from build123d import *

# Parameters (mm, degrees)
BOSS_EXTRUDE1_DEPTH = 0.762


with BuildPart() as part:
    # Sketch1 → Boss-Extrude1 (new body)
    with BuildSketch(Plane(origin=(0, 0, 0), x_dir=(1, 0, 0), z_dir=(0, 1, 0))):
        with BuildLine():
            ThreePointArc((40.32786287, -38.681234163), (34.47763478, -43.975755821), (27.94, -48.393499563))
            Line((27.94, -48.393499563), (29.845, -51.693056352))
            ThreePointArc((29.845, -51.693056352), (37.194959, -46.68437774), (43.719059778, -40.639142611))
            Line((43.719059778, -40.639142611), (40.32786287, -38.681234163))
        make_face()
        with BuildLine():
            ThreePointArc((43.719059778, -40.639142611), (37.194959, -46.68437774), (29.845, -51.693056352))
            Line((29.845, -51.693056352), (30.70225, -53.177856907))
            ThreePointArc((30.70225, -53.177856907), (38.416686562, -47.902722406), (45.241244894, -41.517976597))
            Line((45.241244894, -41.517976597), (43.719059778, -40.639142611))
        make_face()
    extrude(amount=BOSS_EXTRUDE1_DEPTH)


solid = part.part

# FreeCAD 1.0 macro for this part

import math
import FreeCAD as App
import Part
import Sketcher
Q = App.Units.Quantity

doc = App.newDocument("Part")
body = doc.addObject("PartDesign::Body", "Body")

# Sketch on XZ plane
sketch1 = body.newObject("Sketcher::SketchObject", "Sketch")
sketch1.AttachmentSupport = (doc.getObject("XZ_Plane"), [""])
sketch1.MapMode = "FlatFace"
sketch1.addGeometry(Part.ArcOfCircle(Part.Circle(App.Vector(0, 0, 0), App.Vector(0, 0, 1), 55.9), math.radians(43.81), math.radians(60)), False)
sketch1.addGeometry(Part.LineSegment(App.Vector(27.9, 48.4, 0), App.Vector(29.8, 51.7, 0)), False)
sketch1.addGeometry(Part.LineSegment(App.Vector(29.8, 51.7, 0), App.Vector(30.7, 53.2, 0)), False)
sketch1.addGeometry(Part.ArcOfCircle(Part.Circle(App.Vector(0, 0, 0), App.Vector(0, 0, 1), 61.4), math.radians(42.54), math.radians(60)), False)
sketch1.addGeometry(Part.LineSegment(App.Vector(45.2, 41.5, 0), App.Vector(43.7, 40.6, 0)), False)
sketch1.addGeometry(Part.LineSegment(App.Vector(43.7, 40.6, 0), App.Vector(40.3, 38.7, 0)), False)
sketch1.addConstraint(Sketcher.Constraint("Coincident", 0, 2, 1, 1))
sketch1.addConstraint(Sketcher.Constraint("Coincident", 1, 2, 2, 1))
sketch1.addConstraint(Sketcher.Constraint("Coincident", 2, 2, 3, 2))
sketch1.addConstraint(Sketcher.Constraint("Coincident", 3, 1, 4, 1))
sketch1.addConstraint(Sketcher.Constraint("Coincident", 4, 2, 5, 1))
sketch1.addConstraint(Sketcher.Constraint("Coincident", 5, 2, 0, 1))
sketch1.addConstraint(Sketcher.Constraint("Coincident", 0, 3, -1, 1))
sketch1.addConstraint(Sketcher.Constraint("Coincident", 3, 3, -1, 1))
sketch1.addConstraint(Sketcher.Constraint("Parallel", 1, 2))
sketch1.addConstraint(Sketcher.Constraint("Parallel", 4, 5))
sketch1.addConstraint(Sketcher.Constraint("Radius", 0, Q("2.2 in")))
sketch1.addConstraint(Sketcher.Constraint("Angle", 1, Q("60 deg")))
sketch1.addConstraint(Sketcher.Constraint("Angle", 4, Q("-150 deg")))
sketch1.addConstraint(Sketcher.Constraint("DistanceX", -1, 1, 0, 2, Q("1.1 in")))
sketch1.addConstraint(Sketcher.Constraint("Radius", 3, Q("2.4175 in")))
sketch1.addConstraint(Sketcher.Constraint("Distance", 1, Q("0.15 in")))
sketch1.addConstraint(Sketcher.Constraint("DistanceX", -1, 1, 4, 2, Q("43.71906 mm")))
sketch1.addConstraint(Sketcher.Constraint("DistanceY", 3, 1, 1, 2, Q("10.17508 mm")))
pad1 = body.newObject("PartDesign::Pad", "Pad")
pad1.Profile = sketch1
pad1.Length = Q("0.03 in")
pad1.Reversed = True

doc.recompute()
